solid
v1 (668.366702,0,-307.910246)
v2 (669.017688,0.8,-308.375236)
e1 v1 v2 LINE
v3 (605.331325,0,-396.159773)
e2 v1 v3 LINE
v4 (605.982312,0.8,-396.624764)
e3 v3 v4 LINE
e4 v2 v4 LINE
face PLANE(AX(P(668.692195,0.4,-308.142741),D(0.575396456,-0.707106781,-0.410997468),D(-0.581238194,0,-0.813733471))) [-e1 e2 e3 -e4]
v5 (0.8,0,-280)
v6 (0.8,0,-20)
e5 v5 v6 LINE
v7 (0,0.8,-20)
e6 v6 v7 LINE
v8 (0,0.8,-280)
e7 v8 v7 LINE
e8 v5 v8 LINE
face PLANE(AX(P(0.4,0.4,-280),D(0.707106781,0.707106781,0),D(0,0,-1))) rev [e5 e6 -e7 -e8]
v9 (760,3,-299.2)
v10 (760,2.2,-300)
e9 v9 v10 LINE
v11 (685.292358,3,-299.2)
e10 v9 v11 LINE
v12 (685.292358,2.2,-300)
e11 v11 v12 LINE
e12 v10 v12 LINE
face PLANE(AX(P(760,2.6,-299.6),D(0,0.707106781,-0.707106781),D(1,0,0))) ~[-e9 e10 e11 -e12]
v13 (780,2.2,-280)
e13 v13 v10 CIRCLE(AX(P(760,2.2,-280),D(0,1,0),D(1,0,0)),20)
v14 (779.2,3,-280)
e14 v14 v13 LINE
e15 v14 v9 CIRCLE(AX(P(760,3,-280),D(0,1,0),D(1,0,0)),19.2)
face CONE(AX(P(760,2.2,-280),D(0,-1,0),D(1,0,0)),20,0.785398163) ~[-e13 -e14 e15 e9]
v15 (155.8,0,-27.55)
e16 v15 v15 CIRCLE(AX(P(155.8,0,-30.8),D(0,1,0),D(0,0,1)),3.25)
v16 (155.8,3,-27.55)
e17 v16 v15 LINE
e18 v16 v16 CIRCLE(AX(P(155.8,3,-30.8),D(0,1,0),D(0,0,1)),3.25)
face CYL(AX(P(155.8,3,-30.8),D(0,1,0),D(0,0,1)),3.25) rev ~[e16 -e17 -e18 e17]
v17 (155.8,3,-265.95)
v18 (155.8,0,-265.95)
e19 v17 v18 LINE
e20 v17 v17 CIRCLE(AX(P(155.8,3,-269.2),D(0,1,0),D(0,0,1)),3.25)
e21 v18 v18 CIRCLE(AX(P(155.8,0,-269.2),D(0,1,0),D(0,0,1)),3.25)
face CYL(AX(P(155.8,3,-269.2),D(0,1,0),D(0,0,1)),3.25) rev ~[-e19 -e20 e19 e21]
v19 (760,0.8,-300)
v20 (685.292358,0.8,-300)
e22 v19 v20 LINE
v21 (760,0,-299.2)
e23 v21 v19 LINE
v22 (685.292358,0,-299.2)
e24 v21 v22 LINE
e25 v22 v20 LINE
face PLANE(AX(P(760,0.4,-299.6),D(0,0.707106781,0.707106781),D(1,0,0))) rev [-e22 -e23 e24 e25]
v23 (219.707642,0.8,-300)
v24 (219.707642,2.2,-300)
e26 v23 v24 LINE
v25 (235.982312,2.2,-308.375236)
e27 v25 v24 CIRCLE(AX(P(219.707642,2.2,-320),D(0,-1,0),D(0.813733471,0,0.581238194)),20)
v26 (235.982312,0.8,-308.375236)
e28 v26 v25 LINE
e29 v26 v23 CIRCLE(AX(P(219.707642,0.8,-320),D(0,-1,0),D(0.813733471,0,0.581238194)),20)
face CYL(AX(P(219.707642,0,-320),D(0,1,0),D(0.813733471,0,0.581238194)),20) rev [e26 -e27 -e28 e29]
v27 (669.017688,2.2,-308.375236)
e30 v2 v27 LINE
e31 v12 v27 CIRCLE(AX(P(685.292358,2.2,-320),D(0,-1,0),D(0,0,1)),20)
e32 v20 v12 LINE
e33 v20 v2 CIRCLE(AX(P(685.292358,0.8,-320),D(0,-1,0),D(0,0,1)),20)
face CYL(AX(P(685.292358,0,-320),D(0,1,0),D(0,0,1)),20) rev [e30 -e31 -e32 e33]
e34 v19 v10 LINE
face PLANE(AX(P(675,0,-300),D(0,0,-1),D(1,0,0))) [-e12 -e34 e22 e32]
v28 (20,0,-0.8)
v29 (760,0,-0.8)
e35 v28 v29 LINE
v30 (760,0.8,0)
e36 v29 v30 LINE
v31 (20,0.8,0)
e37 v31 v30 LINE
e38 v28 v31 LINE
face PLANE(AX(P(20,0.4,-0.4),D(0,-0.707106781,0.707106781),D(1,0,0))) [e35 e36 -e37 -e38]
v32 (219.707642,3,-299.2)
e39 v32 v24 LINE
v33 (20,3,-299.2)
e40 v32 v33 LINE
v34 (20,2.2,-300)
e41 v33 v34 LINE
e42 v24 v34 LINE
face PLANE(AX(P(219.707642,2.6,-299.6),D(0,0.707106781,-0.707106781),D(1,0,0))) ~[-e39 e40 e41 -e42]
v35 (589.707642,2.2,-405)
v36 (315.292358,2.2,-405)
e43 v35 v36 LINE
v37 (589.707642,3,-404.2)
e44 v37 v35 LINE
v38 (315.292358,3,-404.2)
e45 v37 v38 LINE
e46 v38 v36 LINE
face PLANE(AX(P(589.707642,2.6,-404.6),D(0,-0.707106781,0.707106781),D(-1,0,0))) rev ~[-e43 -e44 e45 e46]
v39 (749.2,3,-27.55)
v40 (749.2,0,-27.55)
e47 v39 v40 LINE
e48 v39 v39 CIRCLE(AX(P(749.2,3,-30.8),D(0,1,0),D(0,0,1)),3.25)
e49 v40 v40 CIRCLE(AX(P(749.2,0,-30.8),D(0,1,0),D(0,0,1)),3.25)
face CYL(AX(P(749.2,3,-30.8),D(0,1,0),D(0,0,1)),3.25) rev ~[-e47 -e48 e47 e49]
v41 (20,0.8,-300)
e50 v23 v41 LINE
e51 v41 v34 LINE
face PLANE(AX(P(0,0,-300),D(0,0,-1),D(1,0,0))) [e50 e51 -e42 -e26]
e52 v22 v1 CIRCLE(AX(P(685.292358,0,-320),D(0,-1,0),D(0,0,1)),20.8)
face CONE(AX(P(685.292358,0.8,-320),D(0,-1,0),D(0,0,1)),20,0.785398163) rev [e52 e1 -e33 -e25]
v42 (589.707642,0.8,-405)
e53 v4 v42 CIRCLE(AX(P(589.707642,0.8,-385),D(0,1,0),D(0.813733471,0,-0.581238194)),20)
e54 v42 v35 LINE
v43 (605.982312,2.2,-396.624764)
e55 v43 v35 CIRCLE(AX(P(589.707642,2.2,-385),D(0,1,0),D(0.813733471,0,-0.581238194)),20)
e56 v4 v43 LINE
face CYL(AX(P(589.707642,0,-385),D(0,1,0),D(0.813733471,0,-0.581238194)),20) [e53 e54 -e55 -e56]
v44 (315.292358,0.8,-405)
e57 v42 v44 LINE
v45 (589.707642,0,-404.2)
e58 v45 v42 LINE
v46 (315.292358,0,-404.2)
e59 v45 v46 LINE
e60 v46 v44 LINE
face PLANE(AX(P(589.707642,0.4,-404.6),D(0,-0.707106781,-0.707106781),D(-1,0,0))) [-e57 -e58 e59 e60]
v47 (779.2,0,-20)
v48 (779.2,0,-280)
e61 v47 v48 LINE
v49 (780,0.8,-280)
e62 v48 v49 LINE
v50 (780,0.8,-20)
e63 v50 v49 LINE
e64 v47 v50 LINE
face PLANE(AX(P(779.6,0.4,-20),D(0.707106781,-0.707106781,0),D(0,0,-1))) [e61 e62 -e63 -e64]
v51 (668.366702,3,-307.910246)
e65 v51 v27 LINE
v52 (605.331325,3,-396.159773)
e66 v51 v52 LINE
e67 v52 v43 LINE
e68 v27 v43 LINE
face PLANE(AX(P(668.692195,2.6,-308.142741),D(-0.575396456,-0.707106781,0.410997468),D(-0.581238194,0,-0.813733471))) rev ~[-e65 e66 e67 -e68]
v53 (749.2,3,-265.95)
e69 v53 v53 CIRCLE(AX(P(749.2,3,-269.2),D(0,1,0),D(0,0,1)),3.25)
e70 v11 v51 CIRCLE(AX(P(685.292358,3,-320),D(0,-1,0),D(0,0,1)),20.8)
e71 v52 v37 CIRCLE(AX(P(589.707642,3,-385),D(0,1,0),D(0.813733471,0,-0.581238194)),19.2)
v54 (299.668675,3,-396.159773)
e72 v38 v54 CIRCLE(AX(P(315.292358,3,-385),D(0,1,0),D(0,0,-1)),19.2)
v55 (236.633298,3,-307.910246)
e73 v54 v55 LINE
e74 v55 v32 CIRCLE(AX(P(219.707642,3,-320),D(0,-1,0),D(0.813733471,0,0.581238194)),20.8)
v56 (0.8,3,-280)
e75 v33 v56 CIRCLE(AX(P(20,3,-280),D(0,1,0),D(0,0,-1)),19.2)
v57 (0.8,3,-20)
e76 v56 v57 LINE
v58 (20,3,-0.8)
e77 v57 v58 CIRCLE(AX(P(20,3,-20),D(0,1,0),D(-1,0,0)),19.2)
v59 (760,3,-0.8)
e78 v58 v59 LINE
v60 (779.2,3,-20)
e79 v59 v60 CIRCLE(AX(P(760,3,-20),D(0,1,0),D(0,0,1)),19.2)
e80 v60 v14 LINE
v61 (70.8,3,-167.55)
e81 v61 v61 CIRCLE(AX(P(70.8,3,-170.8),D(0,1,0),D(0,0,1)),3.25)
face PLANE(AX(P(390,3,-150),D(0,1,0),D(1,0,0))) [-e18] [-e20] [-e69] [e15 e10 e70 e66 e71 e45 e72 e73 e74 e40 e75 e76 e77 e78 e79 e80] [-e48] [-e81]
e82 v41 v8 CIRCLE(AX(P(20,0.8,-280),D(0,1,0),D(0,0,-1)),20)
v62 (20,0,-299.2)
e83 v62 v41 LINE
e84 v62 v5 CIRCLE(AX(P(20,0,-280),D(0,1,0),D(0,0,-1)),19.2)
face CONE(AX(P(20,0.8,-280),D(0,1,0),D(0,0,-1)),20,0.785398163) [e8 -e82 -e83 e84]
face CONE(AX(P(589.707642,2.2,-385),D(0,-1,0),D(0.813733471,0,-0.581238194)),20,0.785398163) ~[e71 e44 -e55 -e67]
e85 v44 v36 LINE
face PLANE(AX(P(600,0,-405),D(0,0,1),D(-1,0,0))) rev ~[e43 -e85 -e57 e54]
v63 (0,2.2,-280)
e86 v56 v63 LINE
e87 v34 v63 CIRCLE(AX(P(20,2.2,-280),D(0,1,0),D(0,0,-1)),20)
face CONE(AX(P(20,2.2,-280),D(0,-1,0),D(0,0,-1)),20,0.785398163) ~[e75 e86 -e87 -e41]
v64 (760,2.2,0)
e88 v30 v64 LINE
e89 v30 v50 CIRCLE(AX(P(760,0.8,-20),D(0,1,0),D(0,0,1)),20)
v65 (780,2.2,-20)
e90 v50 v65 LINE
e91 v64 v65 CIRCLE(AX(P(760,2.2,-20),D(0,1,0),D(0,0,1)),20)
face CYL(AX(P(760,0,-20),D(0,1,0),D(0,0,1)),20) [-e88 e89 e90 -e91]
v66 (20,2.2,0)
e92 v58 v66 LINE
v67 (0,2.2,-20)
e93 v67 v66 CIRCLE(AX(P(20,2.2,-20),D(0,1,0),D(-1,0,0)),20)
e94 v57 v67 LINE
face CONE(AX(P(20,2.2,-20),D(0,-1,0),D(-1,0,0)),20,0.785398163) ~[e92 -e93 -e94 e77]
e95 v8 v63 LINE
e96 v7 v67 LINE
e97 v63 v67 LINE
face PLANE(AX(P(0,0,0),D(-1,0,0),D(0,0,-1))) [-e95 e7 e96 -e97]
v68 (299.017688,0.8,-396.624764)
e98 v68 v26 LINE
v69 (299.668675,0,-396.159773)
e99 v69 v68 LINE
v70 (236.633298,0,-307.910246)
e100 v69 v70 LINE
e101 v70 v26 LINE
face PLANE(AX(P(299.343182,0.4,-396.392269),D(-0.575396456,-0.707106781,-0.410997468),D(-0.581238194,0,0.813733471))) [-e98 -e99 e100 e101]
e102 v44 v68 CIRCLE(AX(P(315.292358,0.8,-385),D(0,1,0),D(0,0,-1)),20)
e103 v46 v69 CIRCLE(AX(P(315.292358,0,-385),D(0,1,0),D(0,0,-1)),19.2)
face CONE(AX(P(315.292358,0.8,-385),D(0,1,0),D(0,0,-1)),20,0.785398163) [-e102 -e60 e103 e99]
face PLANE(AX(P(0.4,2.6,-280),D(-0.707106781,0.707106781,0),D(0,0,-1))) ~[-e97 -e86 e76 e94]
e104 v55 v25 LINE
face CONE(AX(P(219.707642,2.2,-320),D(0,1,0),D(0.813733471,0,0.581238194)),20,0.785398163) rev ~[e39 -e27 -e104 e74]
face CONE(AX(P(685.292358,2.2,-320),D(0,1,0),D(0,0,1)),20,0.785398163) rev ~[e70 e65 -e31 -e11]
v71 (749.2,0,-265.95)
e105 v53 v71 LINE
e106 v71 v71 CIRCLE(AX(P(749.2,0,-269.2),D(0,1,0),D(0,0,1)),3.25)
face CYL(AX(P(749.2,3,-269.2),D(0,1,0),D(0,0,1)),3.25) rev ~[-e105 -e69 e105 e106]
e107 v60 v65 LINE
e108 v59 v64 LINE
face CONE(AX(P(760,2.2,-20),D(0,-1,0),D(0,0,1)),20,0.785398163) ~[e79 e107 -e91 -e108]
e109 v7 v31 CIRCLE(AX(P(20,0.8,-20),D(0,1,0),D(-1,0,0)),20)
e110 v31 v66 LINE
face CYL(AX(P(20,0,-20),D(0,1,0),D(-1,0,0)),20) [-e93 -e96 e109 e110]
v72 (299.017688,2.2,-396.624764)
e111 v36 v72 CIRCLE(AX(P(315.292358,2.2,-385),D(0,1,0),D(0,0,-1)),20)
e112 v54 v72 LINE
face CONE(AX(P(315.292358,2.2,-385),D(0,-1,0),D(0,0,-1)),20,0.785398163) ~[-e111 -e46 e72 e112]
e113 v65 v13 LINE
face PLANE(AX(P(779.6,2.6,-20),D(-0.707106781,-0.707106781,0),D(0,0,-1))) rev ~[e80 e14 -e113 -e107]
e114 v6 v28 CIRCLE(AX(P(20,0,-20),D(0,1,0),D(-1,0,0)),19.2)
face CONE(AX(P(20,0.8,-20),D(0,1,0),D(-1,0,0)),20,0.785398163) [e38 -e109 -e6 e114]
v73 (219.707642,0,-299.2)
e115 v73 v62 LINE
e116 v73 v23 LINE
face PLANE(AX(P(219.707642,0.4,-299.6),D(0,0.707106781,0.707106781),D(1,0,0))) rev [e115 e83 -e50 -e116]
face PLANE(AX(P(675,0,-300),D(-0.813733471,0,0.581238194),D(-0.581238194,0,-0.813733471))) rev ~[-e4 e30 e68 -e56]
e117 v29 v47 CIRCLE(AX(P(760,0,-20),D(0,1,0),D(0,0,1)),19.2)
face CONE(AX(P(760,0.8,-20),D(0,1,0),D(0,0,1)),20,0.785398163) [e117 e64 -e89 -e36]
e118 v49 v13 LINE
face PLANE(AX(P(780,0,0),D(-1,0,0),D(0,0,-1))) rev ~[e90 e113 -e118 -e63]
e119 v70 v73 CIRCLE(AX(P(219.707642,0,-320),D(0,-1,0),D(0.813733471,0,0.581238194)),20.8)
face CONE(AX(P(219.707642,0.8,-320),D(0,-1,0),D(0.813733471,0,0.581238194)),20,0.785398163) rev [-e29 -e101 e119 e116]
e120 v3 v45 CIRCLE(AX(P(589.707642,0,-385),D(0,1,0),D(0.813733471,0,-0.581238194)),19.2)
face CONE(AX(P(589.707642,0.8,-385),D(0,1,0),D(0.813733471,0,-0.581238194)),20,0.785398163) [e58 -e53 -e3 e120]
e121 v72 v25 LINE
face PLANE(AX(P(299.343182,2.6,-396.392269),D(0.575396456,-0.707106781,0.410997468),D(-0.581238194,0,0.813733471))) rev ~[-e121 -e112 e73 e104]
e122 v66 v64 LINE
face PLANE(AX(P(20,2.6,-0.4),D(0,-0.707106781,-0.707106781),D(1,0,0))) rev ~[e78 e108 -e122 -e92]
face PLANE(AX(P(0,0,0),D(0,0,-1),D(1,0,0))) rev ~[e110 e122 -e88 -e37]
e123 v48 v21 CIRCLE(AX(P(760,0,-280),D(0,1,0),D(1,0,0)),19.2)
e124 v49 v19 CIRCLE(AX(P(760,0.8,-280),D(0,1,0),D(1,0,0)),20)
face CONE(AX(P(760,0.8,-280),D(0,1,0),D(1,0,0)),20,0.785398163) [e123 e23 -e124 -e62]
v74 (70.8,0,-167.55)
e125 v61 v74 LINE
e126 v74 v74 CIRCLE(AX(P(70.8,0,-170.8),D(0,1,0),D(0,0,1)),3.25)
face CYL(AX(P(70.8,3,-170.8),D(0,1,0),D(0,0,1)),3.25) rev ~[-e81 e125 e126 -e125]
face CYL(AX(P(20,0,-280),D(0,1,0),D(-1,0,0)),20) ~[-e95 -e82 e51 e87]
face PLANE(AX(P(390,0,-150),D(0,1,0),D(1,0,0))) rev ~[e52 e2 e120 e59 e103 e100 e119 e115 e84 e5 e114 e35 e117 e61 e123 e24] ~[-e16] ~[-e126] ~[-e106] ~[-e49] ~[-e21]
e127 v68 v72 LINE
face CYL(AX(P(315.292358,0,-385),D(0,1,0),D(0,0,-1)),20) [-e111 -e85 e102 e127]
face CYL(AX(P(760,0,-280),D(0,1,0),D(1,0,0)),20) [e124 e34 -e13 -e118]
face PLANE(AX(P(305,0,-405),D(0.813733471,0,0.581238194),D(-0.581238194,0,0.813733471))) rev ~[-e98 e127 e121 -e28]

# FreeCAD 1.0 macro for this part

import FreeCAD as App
import Part
import Sketcher

V = App.Vector


def edges_at(feature, points):
    """Names of the edges that pass closest to the given points."""
    edges = feature.Shape.Edges
    near = lambda p: min(range(len(edges)), key=lambda i: edges[i].distToShape(Part.Vertex(*p))[0])
    return sorted({f"Edge{near(p) + 1}" for p in points})

doc = App.newDocument("Part")
body = doc.addObject("PartDesign::Body", "Body")

# Sketch on XZ plane
sketch1 = body.newObject("Sketcher::SketchObject", "Sketch")
sketch1.AttachmentSupport = (doc.getObject("XZ_Plane"), [""])
sketch1.MapMode = "FlatFace"
sketch1.addGeometry(Part.LineSegment(V(0, -300, 0), V(0, 0, 0)), False)
sketch1.addGeometry(Part.LineSegment(V(0, 0, 0), V(780, 0, 0)), False)
sketch1.addGeometry(Part.LineSegment(V(780, 0, 0), V(780, -300, 0)), False)
sketch1.addGeometry(Part.LineSegment(V(780, -300, 0), V(675, -300, 0)), False)
sketch1.addGeometry(Part.LineSegment(V(675, -300, 0), V(600, -405, 0)), False)
sketch1.addGeometry(Part.LineSegment(V(600, -405, 0), V(305, -405, 0)), False)
sketch1.addGeometry(Part.LineSegment(V(305, -405, 0), V(230, -300, 0)), False)
sketch1.addGeometry(Part.LineSegment(V(230, -300, 0), V(0, -300, 0)), False)
sketch1.addConstraint(Sketcher.Constraint("Coincident", 0, 2, 1, 1))
sketch1.addConstraint(Sketcher.Constraint("Coincident", 1, 2, 2, 1))
sketch1.addConstraint(Sketcher.Constraint("Coincident", 2, 2, 3, 1))
sketch1.addConstraint(Sketcher.Constraint("Coincident", 3, 2, 4, 1))
sketch1.addConstraint(Sketcher.Constraint("Coincident", 4, 2, 5, 1))
sketch1.addConstraint(Sketcher.Constraint("Coincident", 5, 2, 6, 1))
sketch1.addConstraint(Sketcher.Constraint("Coincident", 6, 2, 7, 1))
sketch1.addConstraint(Sketcher.Constraint("Coincident", 7, 2, 0, 1))
sketch1.addConstraint(Sketcher.Constraint("Vertical", 0))
sketch1.addConstraint(Sketcher.Constraint("Horizontal", 1))
sketch1.addConstraint(Sketcher.Constraint("Vertical", 2))
sketch1.addConstraint(Sketcher.Constraint("Horizontal", 3))
sketch1.addConstraint(Sketcher.Constraint("Horizontal", 5))
sketch1.addConstraint(Sketcher.Constraint("Horizontal", 7))
sketch1.addConstraint(Sketcher.Constraint("Coincident", 0, 2, -1, 1))
sketch1.addConstraint(Sketcher.Constraint("Horizontal", 3, 2, 6, 2))
sketch1.addConstraint(Sketcher.Constraint("Equal", 4, 6))
sketch1.addConstraint(Sketcher.Constraint("DistanceX", 1, 1, 1, 2, 780.0))
sketch1.addConstraint(Sketcher.Constraint("DistanceX", 3, 2, 3, 1, 105.0))
sketch1.addConstraint(Sketcher.Constraint("DistanceX", 5, 2, 5, 1, 295.0))
sketch1.addConstraint(Sketcher.Constraint("DistanceX", 7, 2, 7, 1, 230.0))
sketch1.addConstraint(Sketcher.Constraint("DistanceY", 0, 1, 0, 2, 300.0))
sketch1.addConstraint(Sketcher.Constraint("DistanceY", 4, 2, -1, 1, 405.0))
pad1 = body.newObject("PartDesign::Pad", "Pad")
pad1.Profile = sketch1
pad1.Length = 3
pad1.Reversed = True
doc.recompute()

fillet = body.newObject("PartDesign::Fillet", "Fillet")
fillet.Base = (pad1, edges_at(pad1, [
    (0, 1.5, 0),
    (0, 1.5, -300),
    (230, 1.5, -300),
    (305, 1.5, -405),
    (600, 1.5, -405),
    (675, 1.5, -300),
    (780, 1.5, -300),
    (780, 1.5, 0),
]))
fillet.Radius = 20
doc.recompute()

chamfer = body.newObject("PartDesign::Chamfer", "Chamfer")
chamfer.Base = (fillet, edges_at(fillet, [
    (390, 0, 0),
    (390, 3, 0),
    (0, 0, -150),
    (119.854, 0, -300),
    (267.5, 0, -352.5),
    (452.5, 0, -405),
    (637.5, 0, -352.5),
    (722.646, 0, -300),
    (780, 0, -150),
    (5.858, 0, -294.142),
    (774.142, 0, -5.858),
    (774.142, 0, -294.142),
    (598.859, 0, -402.783),
    (306.141, 0, -402.783),
    (5.858, 0, -5.858),
    (0, 3, -150),
    (780, 3, -150),
    (722.646, 3, -300),
    (637.5, 3, -352.5),
    (452.5, 3, -405),
    (267.5, 3, -352.5),
    (119.854, 3, -300),
    (5.858, 3, -294.142),
    (774.142, 3, -5.858),
    (774.142, 3, -294.142),
    (598.859, 3, -402.783),
    (306.141, 3, -402.783),
    (5.858, 3, -5.858),
    (228.859, 0, -302.217),
    (228.859, 3, -302.217),
    (676.141, 0, -302.217),
    (676.141, 3, -302.217),
]))
chamfer.Size = 0.8

# Sketch on XZ plane
sketch2 = body.newObject("Sketcher::SketchObject", "Sketch001")
sketch2.AttachmentSupport = (doc.getObject("XZ_Plane"), [""])
sketch2.MapMode = "FlatFace"
sketch2.AttachmentOffset = App.Placement(V(0, 0, -3), App.Rotation())
sketch2.addGeometry(Part.Circle(V(70.8, -170.8, 0), V(0, 0, 1), 3.2), False)
sketch2.addGeometry(Part.Circle(V(749.2, -269.2, 0), V(0, 0, 1), 3.2), False)
sketch2.addGeometry(Part.Circle(V(749.2, -30.8, 0), V(0, 0, 1), 3.2), False)
sketch2.addGeometry(Part.Circle(V(155.8, -30.8, 0), V(0, 0, 1), 3.2), False)
sketch2.addGeometry(Part.Circle(V(155.8, -269.2, 0), V(0, 0, 1), 3.2), False)
sketch2.addConstraint(Sketcher.Constraint("Equal", 0, 1))
sketch2.addConstraint(Sketcher.Constraint("Equal", 1, 2))
sketch2.addConstraint(Sketcher.Constraint("Equal", 2, 3))
sketch2.addConstraint(Sketcher.Constraint("Equal", 3, 4))
sketch2.addConstraint(Sketcher.Constraint("Horizontal", 2, 3, 3, 3))
sketch2.addConstraint(Sketcher.Constraint("Horizontal", 1, 3, 4, 3))
sketch2.addConstraint(Sketcher.Constraint("Vertical", 1, 3, 2, 3))
sketch2.addConstraint(Sketcher.Constraint("Vertical", 3, 3, 4, 3))
sketch2.addConstraint(Sketcher.Constraint("Diameter", 0, 6.5))
sketch2.addConstraint(Sketcher.Constraint("DistanceY", 0, 3, 2, 3, 140.0))
sketch2.addConstraint(Sketcher.Constraint("DistanceX", 0, 3, 3, 3, 85.0))
sketch2.addConstraint(Sketcher.Constraint("DistanceX", -1, 1, 0, 3, 70.8))
sketch2.addConstraint(Sketcher.Constraint("DistanceY", 0, 3, -1, 1, 170.8))
sketch2.addConstraint(Sketcher.Constraint("DistanceX", -1, 1, 1, 3, 749.2))
sketch2.addConstraint(Sketcher.Constraint("DistanceY", 1, 3, -1, 1, 269.2))
pocket1 = body.newObject("PartDesign::Pocket", "Pocket")
pocket1.Profile = sketch2
pocket1.Length = 10
pocket1.Reversed = True

doc.recompute()
